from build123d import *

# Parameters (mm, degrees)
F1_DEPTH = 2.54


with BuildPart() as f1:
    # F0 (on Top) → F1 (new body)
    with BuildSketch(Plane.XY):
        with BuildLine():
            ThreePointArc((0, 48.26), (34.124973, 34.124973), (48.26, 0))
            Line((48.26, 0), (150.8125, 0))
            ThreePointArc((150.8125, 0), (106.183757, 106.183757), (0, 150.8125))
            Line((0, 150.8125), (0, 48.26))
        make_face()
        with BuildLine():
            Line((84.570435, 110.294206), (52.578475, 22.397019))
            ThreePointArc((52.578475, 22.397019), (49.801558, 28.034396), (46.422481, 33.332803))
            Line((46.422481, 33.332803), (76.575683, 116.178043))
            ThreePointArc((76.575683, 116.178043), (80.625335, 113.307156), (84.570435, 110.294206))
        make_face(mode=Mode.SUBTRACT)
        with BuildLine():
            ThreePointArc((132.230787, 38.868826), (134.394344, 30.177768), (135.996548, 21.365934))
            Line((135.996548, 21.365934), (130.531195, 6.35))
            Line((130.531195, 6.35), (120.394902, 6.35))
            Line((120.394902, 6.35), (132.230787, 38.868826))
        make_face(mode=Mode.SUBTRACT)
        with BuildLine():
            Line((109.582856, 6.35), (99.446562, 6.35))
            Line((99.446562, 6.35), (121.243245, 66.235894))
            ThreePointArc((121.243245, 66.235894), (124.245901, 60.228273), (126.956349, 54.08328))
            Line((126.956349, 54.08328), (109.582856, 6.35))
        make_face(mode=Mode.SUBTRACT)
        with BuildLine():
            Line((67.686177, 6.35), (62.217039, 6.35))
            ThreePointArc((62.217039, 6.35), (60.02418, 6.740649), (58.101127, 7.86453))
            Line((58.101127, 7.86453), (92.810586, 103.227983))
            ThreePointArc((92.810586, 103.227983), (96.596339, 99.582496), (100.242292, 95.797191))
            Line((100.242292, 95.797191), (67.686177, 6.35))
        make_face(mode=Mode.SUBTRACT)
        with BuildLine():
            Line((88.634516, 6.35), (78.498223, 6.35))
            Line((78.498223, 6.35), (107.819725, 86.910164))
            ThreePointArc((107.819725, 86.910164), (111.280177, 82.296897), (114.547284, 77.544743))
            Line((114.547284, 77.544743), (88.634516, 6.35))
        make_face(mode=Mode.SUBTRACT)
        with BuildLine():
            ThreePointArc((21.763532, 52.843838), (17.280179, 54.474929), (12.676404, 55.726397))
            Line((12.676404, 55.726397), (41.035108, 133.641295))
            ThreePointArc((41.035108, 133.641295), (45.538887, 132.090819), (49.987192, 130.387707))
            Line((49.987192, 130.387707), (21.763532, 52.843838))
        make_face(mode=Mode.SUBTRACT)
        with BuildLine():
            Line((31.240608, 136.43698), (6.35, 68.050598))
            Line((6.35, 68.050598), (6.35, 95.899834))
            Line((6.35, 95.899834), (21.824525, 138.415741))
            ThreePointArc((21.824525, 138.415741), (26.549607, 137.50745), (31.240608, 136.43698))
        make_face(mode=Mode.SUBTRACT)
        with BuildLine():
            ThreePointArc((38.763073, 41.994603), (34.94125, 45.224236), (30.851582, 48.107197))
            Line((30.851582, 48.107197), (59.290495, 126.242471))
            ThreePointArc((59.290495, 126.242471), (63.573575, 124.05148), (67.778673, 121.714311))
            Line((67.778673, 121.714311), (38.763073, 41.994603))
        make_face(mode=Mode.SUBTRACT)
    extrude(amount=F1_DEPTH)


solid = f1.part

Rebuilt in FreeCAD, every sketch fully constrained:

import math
import FreeCAD as App
import Part
import Sketcher

V = App.Vector
Q = App.Units.Quantity

doc = App.newDocument("Part")
body = doc.addObject("PartDesign::Body", "Body")

sketch1 = body.newObject("Sketcher::SketchObject", "Sketch")
sketch1.AttachmentSupport = (doc.getObject("XY_Plane"), [""])
sketch1.MapMode = "FlatFace"
sketch1.addGeometry(Part.ArcOfCircle(Part.Circle(V(-0.000001, -0.000001, 0), V(0, 0, 1), 48.260001), math.radians(0.000001), math.radians(89.999999)), False)
sketch1.addGeometry(Part.LineSegment(V(48.26, 0, 0), V(150.8125, 0, 0)), False)
sketch1.addGeometry(Part.ArcOfCircle(Part.Circle(V(-1.579316, -1.579316, 0), V(0, 0, 1), 152.4), math.radians(0.593765), math.radians(89.406235)), False)
sketch1.addGeometry(Part.LineSegment(V(0, 150.8125, 0), V(0, 48.26, 0)), False)
sketch1.addGeometry(Part.ArcOfCircle(Part.Circle(V(-2.180943, 0.79288, 0), V(0, 0, 1), 139.700902), math.radians(51.612311), math.radians(55.684346)), False)
sketch1.addGeometry(Part.LineSegment(V(84.570435, 110.294206, 0), V(52.578475, 22.397019, 0)), False)
sketch1.addGeometry(Part.ArcOfCircle(Part.Circle(V(0.000054, 0.00003, 0), V(0, 0, 1), 57.149939), math.radians(23.072696), math.radians(35.679544)), False)
sketch1.addGeometry(Part.LineSegment(V(46.422481, 33.332803, 0), V(76.575683, 116.178043, 0)), False)
sketch1.addGeometry(Part.LineSegment(V(120.394902, 6.35, 0), V(132.230787, 38.868826, 0)), False)
sketch1.addGeometry(Part.ArcOfCircle(Part.Circle(V(-2.180277, 0.79363, 0), V(0, 0, 1), 139.699874), math.radians(8.468214), math.radians(15.816061)), False)
sketch1.addGeometry(Part.LineSegment(V(135.996548, 21.365934, 0), V(130.531195, 6.35, 0)), False)
sketch1.addGeometry(Part.LineSegment(V(130.531195, 6.35, 0), V(120.394902, 6.35, 0)), False)
sketch1.addGeometry(Part.LineSegment(V(126.956349, 54.08328, 0), V(109.582856, 6.35, 0)), False)
sketch1.addGeometry(Part.LineSegment(V(109.582856, 6.35, 0), V(99.446562, 6.35, 0)), False)
sketch1.addGeometry(Part.LineSegment(V(99.446562, 6.35, 0), V(121.243245, 66.235894, 0)), False)
sketch1.addGeometry(Part.ArcOfCircle(Part.Circle(V(-2.180467, 0.79357, 0), V(0, 0, 1), 139.700073), math.radians(22.424023), math.radians(27.933648)), False)
sketch1.addGeometry(Part.LineSegment(V(100.242292, 95.797191, 0), V(67.686177, 6.35, 0)), False)
sketch1.addGeometry(Part.LineSegment(V(67.686177, 6.35, 0), V(62.217039, 6.35, 0)), False)
sketch1.addGeometry(Part.ArcOfCircle(Part.Circle(V(62.217041, 12.700007, 0), V(0, 0, 1), 6.350007), math.radians(-130.404128), math.radians(-90.000022)), False)
sketch1.addGeometry(Part.LineSegment(V(58.101127, 7.86453, 0), V(92.810586, 103.227983, 0)), False)
sketch1.addGeometry(Part.ArcOfCircle(Part.Circle(V(-2.180583, 0.793424, 0), V(0, 0, 1), 139.700255), math.radians(42.847891), math.radians(47.159156)), False)
sketch1.addGeometry(Part.LineSegment(V(114.547284, 77.544743, 0), V(88.634516, 6.35, 0)), False)
sketch1.addGeometry(Part.LineSegment(V(88.634516, 6.35, 0), V(78.498223, 6.35, 0)), False)
sketch1.addGeometry(Part.LineSegment(V(78.498223, 6.35, 0), V(107.819725, 86.910164, 0)), False)
sketch1.addGeometry(Part.ArcOfCircle(Part.Circle(V(-2.180993, 0.79317, 0), V(0, 0, 1), 139.700733), math.radians(33.325855), math.radians(38.056562)), False)
sketch1.addGeometry(Part.ArcOfCircle(Part.Circle(V(-2.180553, 0.792821, 0), V(0, 0, 1), 139.700794), math.radians(76.158673), math.radians(80.105643)), False)
sketch1.addGeometry(Part.LineSegment(V(31.240608, 136.43698, 0), V(6.35, 68.050598, 0)), False)
sketch1.addGeometry(Part.LineSegment(V(6.35, 68.050598, 0), V(6.35, 95.899834, 0)), False)
sketch1.addGeometry(Part.LineSegment(V(6.35, 95.899834, 0), V(21.824525, 138.415741, 0)), False)
sketch1.addGeometry(Part.LineSegment(V(49.987192, 130.387707, 0), V(21.763532, 52.843838, 0)), False)
sketch1.addGeometry(Part.ArcOfCircle(Part.Circle(V(-0.000049, -0.000154, 0), V(0, 0, 1), 57.150162), math.radians(67.615888), math.radians(77.18466)), False)
sketch1.addGeometry(Part.LineSegment(V(12.676404, 55.726397, 0), V(41.035108, 133.641295, 0)), False)
sketch1.addGeometry(Part.ArcOfCircle(Part.Circle(V(-2.180698, 0.792775, 0), V(0, 0, 1), 139.700877), math.radians(68.072958), math.radians(71.980222)), False)
sketch1.addGeometry(Part.LineSegment(V(67.778673, 121.714311, 0), V(38.763073, 41.994603, 0)), False)
sketch1.addGeometry(Part.ArcOfCircle(Part.Circle(V(-0.000055, -0.00007, 0), V(0, 0, 1), 57.150089), math.radians(47.291484), math.radians(57.327571)), False)
sketch1.addGeometry(Part.LineSegment(V(30.851582, 48.107197, 0), V(59.290495, 126.242471, 0)), False)
sketch1.addGeometry(Part.ArcOfCircle(Part.Circle(V(-2.180383, 0.793624, 0), V(0, 0, 1), 139.699971), math.radians(59.948333), math.radians(63.894799)), False)
sketch1.addConstraint(Sketcher.Constraint("Coincident", 0, 1, 1, 1))
sketch1.addConstraint(Sketcher.Constraint("Coincident", 1, 2, 2, 1))
sketch1.addConstraint(Sketcher.Constraint("Coincident", 2, 2, 3, 1))
sketch1.addConstraint(Sketcher.Constraint("Coincident", 3, 2, 0, 2))
sketch1.addConstraint(Sketcher.Constraint("Coincident", 4, 1, 5, 1))
sketch1.addConstraint(Sketcher.Constraint("Coincident", 5, 2, 6, 1))
sketch1.addConstraint(Sketcher.Constraint("Coincident", 6, 2, 7, 1))
sketch1.addConstraint(Sketcher.Constraint("Coincident", 7, 2, 4, 2))
sketch1.addConstraint(Sketcher.Constraint("Coincident", 8, 2, 9, 2))
sketch1.addConstraint(Sketcher.Constraint("Coincident", 9, 1, 10, 1))
sketch1.addConstraint(Sketcher.Constraint("Coincident", 10, 2, 11, 1))
sketch1.addConstraint(Sketcher.Constraint("Coincident", 11, 2, 8, 1))
sketch1.addConstraint(Sketcher.Constraint("Coincident", 12, 2, 13, 1))
sketch1.addConstraint(Sketcher.Constraint("Coincident", 13, 2, 14, 1))
sketch1.addConstraint(Sketcher.Constraint("Coincident", 14, 2, 15, 2))
sketch1.addConstraint(Sketcher.Constraint("Coincident", 15, 1, 12, 1))
sketch1.addConstraint(Sketcher.Constraint("Coincident", 16, 2, 17, 1))
sketch1.addConstraint(Sketcher.Constraint("Coincident", 17, 2, 18, 2))
sketch1.addConstraint(Sketcher.Constraint("Coincident", 18, 1, 19, 1))
sketch1.addConstraint(Sketcher.Constraint("Coincident", 19, 2, 20, 2))
sketch1.addConstraint(Sketcher.Constraint("Coincident", 20, 1, 16, 1))
sketch1.addConstraint(Sketcher.Constraint("Coincident", 21, 2, 22, 1))
sketch1.addConstraint(Sketcher.Constraint("Coincident", 22, 2, 23, 1))
sketch1.addConstraint(Sketcher.Constraint("Coincident", 23, 2, 24, 2))
sketch1.addConstraint(Sketcher.Constraint("Coincident", 24, 1, 21, 1))
sketch1.addConstraint(Sketcher.Constraint("Coincident", 25, 1, 26, 1))
sketch1.addConstraint(Sketcher.Constraint("Coincident", 26, 2, 27, 1))
sketch1.addConstraint(Sketcher.Constraint("Coincident", 27, 2, 28, 1))
sketch1.addConstraint(Sketcher.Constraint("Coincident", 28, 2, 25, 2))
sketch1.addConstraint(Sketcher.Constraint("Coincident", 29, 2, 30, 1))
sketch1.addConstraint(Sketcher.Constraint("Coincident", 30, 2, 31, 1))
sketch1.addConstraint(Sketcher.Constraint("Coincident", 31, 2, 32, 2))
sketch1.addConstraint(Sketcher.Constraint("Coincident", 32, 1, 29, 1))
sketch1.addConstraint(Sketcher.Constraint("Coincident", 33, 2, 34, 1))
sketch1.addConstraint(Sketcher.Constraint("Coincident", 34, 2, 35, 1))
sketch1.addConstraint(Sketcher.Constraint("Coincident", 35, 2, 36, 2))
sketch1.addConstraint(Sketcher.Constraint("Coincident", 36, 1, 33, 1))
sketch1.addConstraint(Sketcher.Constraint("Horizontal", 1))
sketch1.addConstraint(Sketcher.Constraint("Vertical", 3))
sketch1.addConstraint(Sketcher.Constraint("Horizontal", 11))
sketch1.addConstraint(Sketcher.Constraint("Horizontal", 13))
sketch1.addConstraint(Sketcher.Constraint("Horizontal", 17))
sketch1.addConstraint(Sketcher.Constraint("Horizontal", 22))
sketch1.addConstraint(Sketcher.Constraint("Vertical", 27))
sketch1.addConstraint(Sketcher.Constraint("Coincident", 0, 3, -1, 1))
sketch1.addConstraint(Sketcher.Constraint("PointOnObject", 0, 1, -1))
sketch1.addConstraint(Sketcher.Constraint("PointOnObject", 2, 2, -2))
sketch1.addConstraint(Sketcher.Constraint("Radius", 2, Q("6 in")))
sketch1.addConstraint(Sketcher.Constraint("Radius", 0, Q("1.9 in")))
sketch1.addConstraint(Sketcher.Constraint("DistanceY", -1, 1, 10, 2, Q("0.25 in")))
sketch1.addConstraint(Sketcher.Constraint("DistanceY", -1, 1, 12, 2, Q("0.25 in")))
sketch1.addConstraint(Sketcher.Constraint("DistanceY", -1, 1, 16, 2, Q("0.25 in")))
sketch1.addConstraint(Sketcher.Constraint("DistanceY", -1, 1, 21, 2, Q("0.25 in")))
sketch1.addConstraint(Sketcher.Constraint("DistanceX", -1, 1, 26, 2, Q("0.25 in")))
sketch1.addConstraint(Sketcher.Constraint("DistanceX", 1, 1, 1, 2, Q("4.0375 in")))
sketch1.addConstraint(Sketcher.Constraint("DistanceY", 3, 2, 3, 1, Q("4.0375 in")))
sketch1.addConstraint(Sketcher.Constraint("Radius", 6, Q("57.149939 mm")))
sketch1.addConstraint(Sketcher.Constraint("Radius", 30, Q("57.150162 mm")))
sketch1.addConstraint(Sketcher.Constraint("Radius", 34, Q("57.150089 mm")))
sketch1.addConstraint(Sketcher.Constraint("Radius", 36, Q("139.699971 mm")))
sketch1.addConstraint(Sketcher.Constraint("Radius", 4, Q("139.700902 mm")))
sketch1.addConstraint(Sketcher.Constraint("Radius", 9, Q("139.699874 mm")))
sketch1.addConstraint(Sketcher.Constraint("Radius", 15, Q("139.700073 mm")))
sketch1.addConstraint(Sketcher.Constraint("Radius", 18, Q("6.350007 mm")))
sketch1.addConstraint(Sketcher.Constraint("Radius", 20, Q("139.700255 mm")))
sketch1.addConstraint(Sketcher.Constraint("Radius", 24, Q("139.700733 mm")))
sketch1.addConstraint(Sketcher.Constraint("Radius", 25, Q("139.700794 mm")))
sketch1.addConstraint(Sketcher.Constraint("Radius", 32, Q("139.700877 mm")))
sketch1.addConstraint(Sketcher.Constraint("DistanceY", 7, 2, 28, 2, Q("0.8754999 in")))
sketch1.addConstraint(Sketcher.Constraint("DistanceX", 17, 2, 17, 1, Q("5.469138 mm")))
sketch1.addConstraint(Sketcher.Constraint("DistanceX", 32, 3, -1, 1, Q("2.180698 mm")))
sketch1.addConstraint(Sketcher.Constraint("DistanceX", -1, 1, 11, 2, Q("120.394902 mm")))
sketch1.addConstraint(Sketcher.Constraint("DistanceY", 6, 3, 9, 3, Q("0.7936 mm")))
sketch1.addConstraint(Sketcher.Constraint("DistanceY", 24, 3, 15, 3, Q("0.0004 mm")))
sketch1.addConstraint(Sketcher.Constraint("DistanceY", 34, 3, 6, 3, Q("0.000101 mm")))
sketch1.addConstraint(Sketcher.Constraint("DistanceX", 25, 3, 34, 3, Q("2.180499 mm")))
sketch1.addConstraint(Sketcher.Constraint("DistanceX", 20, 3, 36, 3, Q("0.000201 mm")))
sketch1.addConstraint(Sketcher.Constraint("DistanceY", 20, 3, 36, 3, Q("0.0002 mm")))
sketch1.addConstraint(Sketcher.Constraint("DistanceY", 18, 3, 4, 1, Q("97.594199 mm")))
sketch1.addConstraint(Sketcher.Constraint("DistanceX", 6, 2, 7, 2, Q("30.153202 mm")))
sketch1.addConstraint(Sketcher.Constraint("DistanceX", 15, 1, 9, 1, Q("9.040199 mm")))
sketch1.addConstraint(Sketcher.Constraint("DistanceX", 19, 2, 8, 2, Q("39.420201 mm")))
sketch1.addConstraint(Sketcher.Constraint("DistanceX", 19, 2, 24, 1, Q("21.736698 mm")))
sketch1.addConstraint(Sketcher.Constraint("DistanceY", 30, 2, 26, 2, Q("12.324201 mm")))
sketch1.addConstraint(Sketcher.Constraint("DistanceX", 25, 1, 31, 2, Q("9.7945 mm")))
sketch1.addConstraint(Sketcher.Constraint("DistanceY", 4, 1, 32, 1, Q("20.093501 mm")))
sketch1.addConstraint(Sketcher.Constraint("DistanceY", 6, 2, 33, 2, Q("8.6618 mm")))
sketch1.addConstraint(Sketcher.Constraint("DistanceX", 33, 2, 5, 2, Q("13.815402 mm")))
sketch1.addConstraint(Sketcher.Constraint("DistanceY", 34, 2, 30, 2, Q("7.6192 mm")))
sketch1.addConstraint(Sketcher.Constraint("DistanceX", 34, 2, 6, 2, Q("15.570899 mm")))
sketch1.addConstraint(Sketcher.Constraint("Distance", 8, Q("34.605812 mm")))
sketch1.addConstraint(Sketcher.Constraint("Distance", 29, Q("82.520462 mm")))
sketch1.addConstraint(Sketcher.Constraint("Distance", 33, Q("84.835941 mm")))
sketch1.addConstraint(Sketcher.Constraint("Distance", 35, Q("83.149822 mm")))
sketch1.addConstraint(Sketcher.Constraint("DistanceX", 11, 2, 11, 1, Q("10.136293 mm")))
sketch1.addConstraint(Sketcher.Constraint("DistanceX", 13, 2, 13, 1, Q("10.136294 mm")))
sketch1.addConstraint(Sketcher.Constraint("DistanceX", 22, 2, 22, 1, Q("10.136293 mm")))
sketch1.addConstraint(Sketcher.Constraint("DistanceY", 27, 1, 27, 2, Q("27.849236 mm")))
sketch1.addConstraint(Sketcher.Constraint("DistanceY", -1, 1, 4, 3, Q("0.79288 mm")))
sketch1.addConstraint(Sketcher.Constraint("DistanceY", -1, 1, 9, 3, Q("0.79363 mm")))
sketch1.addConstraint(Sketcher.Constraint("DistanceY", -1, 1, 15, 3, Q("0.79357 mm")))
sketch1.addConstraint(Sketcher.Constraint("DistanceX", -1, 1, 18, 3, Q("62.217041 mm")))
sketch1.addConstraint(Sketcher.Constraint("DistanceY", -1, 1, 25, 3, Q("0.792821 mm")))
sketch1.addConstraint(Sketcher.Constraint("DistanceY", -1, 1, 5, 2, Q("22.397019 mm")))
sketch1.addConstraint(Sketcher.Constraint("DistanceX", -1, 1, 6, 2, Q("46.422481 mm")))
sketch1.addConstraint(Sketcher.Constraint("DistanceX", -1, 1, 13, 2, Q("99.446562 mm")))
sketch1.addConstraint(Sketcher.Constraint("DistanceX", -1, 1, 15, 1, Q("126.956349 mm")))
sketch1.addConstraint(Sketcher.Constraint("DistanceY", -1, 1, 15, 1, Q("54.08328 mm")))
sketch1.addConstraint(Sketcher.Constraint("DistanceX", -1, 1, 17, 2, Q("62.217039 mm")))
sketch1.addConstraint(Sketcher.Constraint("DistanceY", -1, 1, 18, 1, Q("7.86453 mm")))
sketch1.addConstraint(Sketcher.Constraint("DistanceY", -1, 1, 20, 1, Q("95.797191 mm")))
sketch1.addConstraint(Sketcher.Constraint("DistanceX", -1, 1, 25, 1, Q("31.240608 mm")))
sketch1.addConstraint(Sketcher.Constraint("DistanceY", -1, 1, 25, 1, Q("136.43698 mm")))
sketch1.addConstraint(Sketcher.Constraint("DistanceY", -1, 1, 28, 2, Q("138.415741 mm")))
sketch1.addConstraint(Sketcher.Constraint("DistanceX", -1, 1, 32, 1, Q("49.987192 mm")))
sketch1.addConstraint(Sketcher.Constraint("DistanceY", -1, 1, 35, 2, Q("126.242471 mm")))
sketch1.addConstraint(Sketcher.Constraint("DistanceX", 9, 3, 6, 3, Q("2.180331 mm")))
sketch1.addConstraint(Sketcher.Constraint("DistanceX", 4, 3, 20, 3, Q("0.00036 mm")))
sketch1.addConstraint(Sketcher.Constraint("DistanceX", 24, 3, 20, 3, Q("0.00041 mm")))
sketch1.addConstraint(Sketcher.Constraint("DistanceY", 2, 3, 30, 3, Q("1.579162 mm")))
sketch1.addConstraint(Sketcher.Constraint("DistanceX", 9, 3, 30, 3, Q("2.180228 mm")))
sketch1.addConstraint(Sketcher.Constraint("DistanceX", 14, 2, 8, 2, Q("10.987542 mm")))
sketch1.addConstraint(Sketcher.Constraint("DistanceX", 16, 2, 21, 2, Q("20.948339 mm")))
sketch1.addConstraint(Sketcher.Constraint("DistanceX", 19, 2, 23, 2, Q("15.009139 mm")))
pad1 = body.newObject("PartDesign::Pad", "Pad")
pad1.Profile = sketch1
pad1.Length = Q("0.1 in")

doc.recompute()
